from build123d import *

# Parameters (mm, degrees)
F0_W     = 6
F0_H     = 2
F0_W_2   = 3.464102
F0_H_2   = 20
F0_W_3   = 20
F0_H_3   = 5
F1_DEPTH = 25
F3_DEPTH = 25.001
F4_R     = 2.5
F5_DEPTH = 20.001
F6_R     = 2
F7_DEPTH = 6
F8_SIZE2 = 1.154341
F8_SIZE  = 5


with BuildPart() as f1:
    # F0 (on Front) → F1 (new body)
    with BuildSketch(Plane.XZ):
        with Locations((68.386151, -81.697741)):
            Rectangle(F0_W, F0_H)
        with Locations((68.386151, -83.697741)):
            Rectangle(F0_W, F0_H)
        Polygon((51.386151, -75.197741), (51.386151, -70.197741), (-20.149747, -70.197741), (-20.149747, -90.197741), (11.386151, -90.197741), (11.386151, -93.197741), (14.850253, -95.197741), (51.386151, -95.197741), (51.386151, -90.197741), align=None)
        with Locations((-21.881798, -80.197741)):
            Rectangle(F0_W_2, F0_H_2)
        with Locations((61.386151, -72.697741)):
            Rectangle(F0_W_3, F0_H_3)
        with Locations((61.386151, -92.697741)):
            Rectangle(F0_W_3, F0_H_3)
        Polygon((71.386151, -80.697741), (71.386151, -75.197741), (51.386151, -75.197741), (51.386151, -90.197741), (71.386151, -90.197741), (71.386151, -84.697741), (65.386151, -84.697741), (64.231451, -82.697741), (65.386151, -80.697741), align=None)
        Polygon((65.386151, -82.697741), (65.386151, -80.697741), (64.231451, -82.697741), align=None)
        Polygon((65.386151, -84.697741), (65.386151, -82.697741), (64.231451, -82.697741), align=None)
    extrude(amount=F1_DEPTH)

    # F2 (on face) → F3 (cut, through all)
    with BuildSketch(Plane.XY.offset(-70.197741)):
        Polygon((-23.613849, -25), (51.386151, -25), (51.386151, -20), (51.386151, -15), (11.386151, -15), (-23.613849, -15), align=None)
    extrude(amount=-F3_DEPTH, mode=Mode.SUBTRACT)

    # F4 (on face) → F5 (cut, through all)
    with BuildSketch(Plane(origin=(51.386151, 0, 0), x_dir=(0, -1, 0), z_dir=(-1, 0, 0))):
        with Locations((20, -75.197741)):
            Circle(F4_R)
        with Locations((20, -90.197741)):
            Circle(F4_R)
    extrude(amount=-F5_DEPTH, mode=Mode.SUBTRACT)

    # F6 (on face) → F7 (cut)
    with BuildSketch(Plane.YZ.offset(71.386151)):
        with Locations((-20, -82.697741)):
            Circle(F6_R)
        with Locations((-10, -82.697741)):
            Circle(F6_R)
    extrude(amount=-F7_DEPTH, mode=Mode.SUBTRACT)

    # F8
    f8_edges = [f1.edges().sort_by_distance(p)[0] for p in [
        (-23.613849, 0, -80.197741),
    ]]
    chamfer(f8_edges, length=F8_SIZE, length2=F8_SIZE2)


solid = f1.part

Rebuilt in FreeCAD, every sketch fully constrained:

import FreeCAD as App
import Part
import Sketcher

V = App.Vector
Q = App.Units.Quantity


def edges_at(feature, points):
    """Names of the edges that pass closest to the given points."""
    edges = feature.Shape.Edges
    near = lambda p: min(range(len(edges)), key=lambda i: edges[i].distToShape(Part.Vertex(*p))[0])
    return sorted({f"Edge{near(p) + 1}" for p in points})

doc = App.newDocument("Part")
body = doc.addObject("PartDesign::Body", "Body")

sketch1 = body.newObject("Sketcher::SketchObject", "Sketch")
sketch1.AttachmentSupport = (doc.getObject("XZ_Plane"), [""])
sketch1.MapMode = "FlatFace"
sketch1.addGeometry(Part.LineSegment(V(71.386151, -70.197741, 0), V(-23.613849, -70.197741, 0)), False)
sketch1.addGeometry(Part.LineSegment(V(-23.613849, -70.197741, 0), V(-23.613849, -90.197741, 0)), False)
sketch1.addGeometry(Part.LineSegment(V(-23.613849, -90.197741, 0), V(11.386151, -90.197741, 0)), False)
sketch1.addGeometry(Part.LineSegment(V(11.386151, -90.197741, 0), V(11.386151, -93.197741, 0)), False)
sketch1.addGeometry(Part.LineSegment(V(11.386151, -93.197741, 0), V(14.850253, -95.197741, 0)), False)
sketch1.addGeometry(Part.LineSegment(V(14.850253, -95.197741, 0), V(71.386151, -95.197741, 0)), False)
sketch1.addGeometry(Part.LineSegment(V(71.386151, -95.197741, 0), V(71.386151, -70.197741, 0)), False)
sketch1.addConstraint(Sketcher.Constraint("Coincident", 0, 2, 1, 1))
sketch1.addConstraint(Sketcher.Constraint("Coincident", 1, 2, 2, 1))
sketch1.addConstraint(Sketcher.Constraint("Coincident", 2, 2, 3, 1))
sketch1.addConstraint(Sketcher.Constraint("Coincident", 3, 2, 4, 1))
sketch1.addConstraint(Sketcher.Constraint("Coincident", 4, 2, 5, 1))
sketch1.addConstraint(Sketcher.Constraint("Coincident", 5, 2, 6, 1))
sketch1.addConstraint(Sketcher.Constraint("Coincident", 6, 2, 0, 1))
sketch1.addConstraint(Sketcher.Constraint("Horizontal", 0))
sketch1.addConstraint(Sketcher.Constraint("Vertical", 1))
sketch1.addConstraint(Sketcher.Constraint("Horizontal", 2))
sketch1.addConstraint(Sketcher.Constraint("Vertical", 3))
sketch1.addConstraint(Sketcher.Constraint("Horizontal", 5))
sketch1.addConstraint(Sketcher.Constraint("Vertical", 6))
sketch1.addConstraint(Sketcher.Constraint("DistanceX", 0, 2, 0, 1, 95.0))
sketch1.addConstraint(Sketcher.Constraint("DistanceX", 2, 1, 2, 2, 35.0))
sketch1.addConstraint(Sketcher.Constraint("DistanceY", 1, 2, 1, 1, 20.0))
sketch1.addConstraint(Sketcher.Constraint("DistanceY", 3, 2, 3, 1, 3.0))
sketch1.addConstraint(Sketcher.Constraint("DistanceY", 6, 1, 6, 2, 25.0))
sketch1.addConstraint(Sketcher.Constraint("Angle", 4, Q("-29.999997 deg")))
sketch1.addConstraint(Sketcher.Constraint("DistanceX", 0, 2, -1, 1, 23.613849))
sketch1.addConstraint(Sketcher.Constraint("DistanceY", 0, 2, -1, 1, 70.197741))
pad1 = body.newObject("PartDesign::Pad", "Pad")
pad1.Profile = sketch1
pad1.Length = 25

sketch2 = body.newObject("Sketcher::SketchObject", "Sketch001")
sketch2.AttachmentSupport = (doc.getObject("XY_Plane"), [""])
sketch2.MapMode = "FlatFace"
sketch2.AttachmentOffset = App.Placement(V(0, 0, -70.197741), App.Rotation())
sketch2.addGeometry(Part.LineSegment(V(-23.613849, -25, 0), V(51.386151, -25, 0)), False)
sketch2.addGeometry(Part.LineSegment(V(51.386151, -25, 0), V(51.386151, -15, 0)), False)
sketch2.addGeometry(Part.LineSegment(V(51.386151, -15, 0), V(-23.613849, -15, 0)), False)
sketch2.addGeometry(Part.LineSegment(V(-23.613849, -15, 0), V(-23.613849, -25, 0)), False)
sketch2.addConstraint(Sketcher.Constraint("Coincident", 0, 2, 1, 1))
sketch2.addConstraint(Sketcher.Constraint("Coincident", 1, 2, 2, 1))
sketch2.addConstraint(Sketcher.Constraint("Coincident", 2, 2, 3, 1))
sketch2.addConstraint(Sketcher.Constraint("Coincident", 3, 2, 0, 1))
sketch2.addConstraint(Sketcher.Constraint("Horizontal", 0))
sketch2.addConstraint(Sketcher.Constraint("Vertical", 1))
sketch2.addConstraint(Sketcher.Constraint("Horizontal", 2))
sketch2.addConstraint(Sketcher.Constraint("Vertical", 3))
sketch2.addConstraint(Sketcher.Constraint("DistanceX", 0, 1, 0, 2, 75.0))
sketch2.addConstraint(Sketcher.Constraint("DistanceY", 1, 1, 1, 2, 10.0))
sketch2.addConstraint(Sketcher.Constraint("DistanceY", 0, 2, -1, 1, 25.0))
sketch2.addConstraint(Sketcher.Constraint("DistanceX", -1, 1, 0, 2, 51.386151))
pocket1 = body.newObject("PartDesign::Pocket", "Pocket")
pocket1.Profile = sketch2
pocket1.Type = "ThroughAll"

sketch3 = body.newObject("Sketcher::SketchObject", "Sketch002")
sketch3.AttachmentSupport = (doc.getObject("YZ_Plane"), [""])
sketch3.MapMode = "FlatFace"
sketch3.AttachmentOffset = App.Placement(V(0, 0, 51.386151), App.Rotation())
sketch3.addGeometry(Part.Circle(V(-20, -75.197741, 0), V(0, 0, 1), 2.5), False)
sketch3.addGeometry(Part.Circle(V(-20, -90.197741, 0), V(0, 0, 1), 2.5), False)
sketch3.addConstraint(Sketcher.Constraint("Equal", 0, 1))
sketch3.addConstraint(Sketcher.Constraint("Vertical", 0, 3, 1, 3))
sketch3.addConstraint(Sketcher.Constraint("Diameter", 0, 5.0))
sketch3.addConstraint(Sketcher.Constraint("DistanceX", 0, 3, -1, 1, 20.0))
sketch3.addConstraint(Sketcher.Constraint("DistanceY", 1, 3, 0, 3, 15.0))
sketch3.addConstraint(Sketcher.Constraint("DistanceY", 0, 3, -1, 1, 75.197741))
pocket2 = body.newObject("PartDesign::Pocket", "Pocket001")
pocket2.Profile = sketch3
pocket2.Type = "ThroughAll"
pocket2.Reversed = True

sketch4 = body.newObject("Sketcher::SketchObject", "Sketch003")
sketch4.AttachmentSupport = (doc.getObject("YZ_Plane"), [""])
sketch4.MapMode = "FlatFace"
sketch4.AttachmentOffset = App.Placement(V(0, 0, 71.386151), App.Rotation())
sketch4.addGeometry(Part.Circle(V(-20, -82.697741, 0), V(0, 0, 1), 2), False)
sketch4.addGeometry(Part.Circle(V(-10, -82.697741, 0), V(0, 0, 1), 2), False)
sketch4.addConstraint(Sketcher.Constraint("Equal", 0, 1))
sketch4.addConstraint(Sketcher.Constraint("Horizontal", 0, 3, 1, 3))
sketch4.addConstraint(Sketcher.Constraint("Diameter", 0, 4.0))
sketch4.addConstraint(Sketcher.Constraint("DistanceX", 0, 3, -1, 1, 20.0))
sketch4.addConstraint(Sketcher.Constraint("DistanceX", 1, 3, -1, 1, 10.0))
sketch4.addConstraint(Sketcher.Constraint("DistanceY", 0, 3, -1, 1, 82.697741))
pocket3 = body.newObject("PartDesign::Pocket", "Pocket002")
pocket3.Profile = sketch4
pocket3.Length = 6
doc.recompute()

chamfer = body.newObject("PartDesign::Chamfer", "Chamfer")
chamfer.Base = (pocket3, edges_at(pocket3, [(-23.614, 0, -80.198)]))
chamfer.ChamferType = "Two distances"
chamfer.Size = 5
chamfer.Size2 = 1.154341

doc.recompute()
